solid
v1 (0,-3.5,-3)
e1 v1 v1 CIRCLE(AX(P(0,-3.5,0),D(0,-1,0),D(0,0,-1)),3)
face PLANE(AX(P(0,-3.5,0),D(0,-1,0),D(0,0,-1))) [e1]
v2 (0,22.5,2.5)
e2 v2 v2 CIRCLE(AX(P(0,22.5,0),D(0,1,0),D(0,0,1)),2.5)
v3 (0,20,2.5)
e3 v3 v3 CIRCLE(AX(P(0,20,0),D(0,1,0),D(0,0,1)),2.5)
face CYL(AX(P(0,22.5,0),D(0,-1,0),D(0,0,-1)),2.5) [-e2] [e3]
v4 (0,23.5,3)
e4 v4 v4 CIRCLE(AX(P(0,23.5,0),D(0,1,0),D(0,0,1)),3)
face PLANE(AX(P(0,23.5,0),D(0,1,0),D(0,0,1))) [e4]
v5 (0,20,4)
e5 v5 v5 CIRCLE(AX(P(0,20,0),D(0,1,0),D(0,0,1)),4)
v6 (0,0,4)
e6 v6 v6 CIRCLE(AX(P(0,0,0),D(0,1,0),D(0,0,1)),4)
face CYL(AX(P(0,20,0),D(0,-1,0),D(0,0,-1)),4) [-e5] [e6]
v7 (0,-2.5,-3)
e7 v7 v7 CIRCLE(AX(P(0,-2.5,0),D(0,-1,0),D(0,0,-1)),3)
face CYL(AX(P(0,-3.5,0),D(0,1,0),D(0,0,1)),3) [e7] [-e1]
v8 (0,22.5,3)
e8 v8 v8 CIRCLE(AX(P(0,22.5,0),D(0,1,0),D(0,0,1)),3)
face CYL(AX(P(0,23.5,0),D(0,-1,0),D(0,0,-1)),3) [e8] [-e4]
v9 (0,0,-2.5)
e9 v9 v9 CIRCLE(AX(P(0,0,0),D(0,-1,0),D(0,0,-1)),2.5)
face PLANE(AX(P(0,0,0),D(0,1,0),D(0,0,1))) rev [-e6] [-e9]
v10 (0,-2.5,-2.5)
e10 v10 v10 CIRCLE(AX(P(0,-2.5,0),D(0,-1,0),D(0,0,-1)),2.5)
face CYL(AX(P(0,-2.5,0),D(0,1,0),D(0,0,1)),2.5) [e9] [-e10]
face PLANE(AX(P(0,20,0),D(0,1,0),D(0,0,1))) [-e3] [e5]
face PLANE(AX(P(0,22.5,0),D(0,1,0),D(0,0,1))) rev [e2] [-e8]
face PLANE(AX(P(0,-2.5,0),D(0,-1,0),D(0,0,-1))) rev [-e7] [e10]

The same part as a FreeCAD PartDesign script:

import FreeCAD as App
import Part
import Sketcher

V = App.Vector

doc = App.newDocument("Part")
body = doc.addObject("PartDesign::Body", "Body")

sketch1 = body.newObject("Sketcher::SketchObject", "Sketch")
sketch1.AttachmentSupport = (doc.getObject("XZ_Plane"), [""])
sketch1.MapMode = "FlatFace"
sketch1.addGeometry(Part.Circle(V(0, 0, 0), V(0, 0, 1), 4), False)
sketch1.addConstraint([
    Sketcher.Constraint("Coincident", 0, 3, -1, 1),
    Sketcher.Constraint("Diameter", 0, 8.0),
])
pad1 = body.newObject("PartDesign::Pad", "Pad")
pad1.Profile = sketch1
pad1.Length = 20
pad1.Reversed = True

sketch2 = body.newObject("Sketcher::SketchObject", "Sketch001")
sketch2.AttachmentSupport = (doc.getObject("XZ_Plane"), [""])
sketch2.MapMode = "FlatFace"
sketch2.addGeometry(Part.Circle(V(0, 0, 0), V(0, 0, 1), 2.5), False)
sketch2.addConstraint([
    Sketcher.Constraint("Coincident", 0, 3, -1, 1),
    Sketcher.Constraint("Diameter", 0, 5.0),
])
pad2 = body.newObject("PartDesign::Pad", "Pad001")
pad2.Profile = sketch2
pad2.Length = 2.5

sketch3 = body.newObject("Sketcher::SketchObject", "Sketch002")
sketch3.AttachmentSupport = (doc.getObject("XZ_Plane"), [""])
sketch3.MapMode = "FlatFace"
sketch3.AttachmentOffset = App.Placement(V(0, 0, 2.5), App.Rotation())
sketch3.addGeometry(Part.Circle(V(0, 0, 0), V(0, 0, 1), 3), False)
sketch3.addConstraint([
    Sketcher.Constraint("Coincident", 0, 3, -1, 1),
    Sketcher.Constraint("Diameter", 0, 6.0),
])
pad3 = body.newObject("PartDesign::Pad", "Pad002")
pad3.Profile = sketch3
pad3.Length = 1

sketch4 = body.newObject("Sketcher::SketchObject", "Sketch003")
sketch4.AttachmentSupport = (doc.getObject("XZ_Plane"), [""])
sketch4.MapMode = "FlatFace"
sketch4.AttachmentOffset = App.Placement(V(0, 0, -22.5), App.Rotation())
sketch4.addGeometry(Part.Circle(V(0, 0, 0), V(0, 0, 1), 2.5), False)
sketch4.addConstraint([
    Sketcher.Constraint("Coincident", 0, 3, -1, 1),
    Sketcher.Constraint("Diameter", 0, 5.0),
])
pad4 = body.newObject("PartDesign::Pad", "Pad003")
pad4.Profile = sketch4
pad4.Length = 2.5

sketch5 = body.newObject("Sketcher::SketchObject", "Sketch004")
sketch5.AttachmentSupport = (doc.getObject("XZ_Plane"), [""])
sketch5.MapMode = "FlatFace"
sketch5.AttachmentOffset = App.Placement(V(0, 0, -23.5), App.Rotation())
sketch5.addGeometry(Part.Circle(V(0, 0, 0), V(0, 0, 1), 3), False)
sketch5.addConstraint([
    Sketcher.Constraint("Coincident", 0, 3, -1, 1),
    Sketcher.Constraint("Diameter", 0, 6.0),
])
pad5 = body.newObject("PartDesign::Pad", "Pad004")
pad5.Profile = sketch5
pad5.Length = 1

doc.recompute()
